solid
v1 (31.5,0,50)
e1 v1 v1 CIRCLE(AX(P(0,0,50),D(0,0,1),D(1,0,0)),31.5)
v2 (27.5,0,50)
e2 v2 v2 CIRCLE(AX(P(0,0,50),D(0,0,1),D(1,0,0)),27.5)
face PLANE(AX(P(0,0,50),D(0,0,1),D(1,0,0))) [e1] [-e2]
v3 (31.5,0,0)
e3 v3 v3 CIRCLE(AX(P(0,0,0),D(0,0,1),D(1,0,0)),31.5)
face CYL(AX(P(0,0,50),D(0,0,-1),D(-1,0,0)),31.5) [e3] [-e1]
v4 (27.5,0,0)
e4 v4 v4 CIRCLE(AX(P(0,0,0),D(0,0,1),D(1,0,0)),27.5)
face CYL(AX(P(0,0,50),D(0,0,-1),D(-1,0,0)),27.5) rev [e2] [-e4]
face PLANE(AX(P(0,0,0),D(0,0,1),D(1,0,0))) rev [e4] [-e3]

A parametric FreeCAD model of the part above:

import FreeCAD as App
import Part
import Sketcher
from FreeCAD import Vector
Q = App.Units.Quantity

doc = App.newDocument("Part")
params = doc.addObject("Spreadsheet::Sheet", "Params")
for row, (alias, value) in enumerate([
    ("sketch1_diameter", "63 mm"),
    ("sketch1_diameter2", "55 mm"),
    ("pad1_length", "50 mm"),
], start=1):
    params.set(f"A{row}", alias)
    params.set(f"B{row}", "=" + value)
    params.setAlias(f"B{row}", alias)

body = doc.addObject("PartDesign::Body", "Body")

sketch1 = doc.addObject("Sketcher::SketchObject", "Sketch")
body.addObject(sketch1)
sketch1.AttachmentSupport = (doc.XY_Plane, [""])
sketch1.MapMode = "FlatFace"
sketch1.addGeometry([
    Part.Circle(Vector(0, 0, 0), Vector(0, 0, 1), 32),
    Part.Circle(Vector(0, 0, 0), Vector(0, 0, 1), 28),
], False)
sketch1.addConstraint([
    Sketcher.Constraint("Coincident", 0, 3, -1, 1),
    Sketcher.Constraint("Coincident", 1, 3, -1, 1),
    Sketcher.Constraint("Diameter", 0, Q("63 mm")),
    Sketcher.Constraint("Diameter", 1, Q("55 mm")),
])
sketch1.setExpression("Constraints[2]", "Params.sketch1_diameter")
sketch1.setExpression("Constraints[3]", "Params.sketch1_diameter2")
pad1 = doc.addObject("PartDesign::Pad", "Pad")
body.addObject(pad1)
pad1.Profile = sketch1
pad1.setExpression("Length", "Params.pad1_length")

doc.recompute()
